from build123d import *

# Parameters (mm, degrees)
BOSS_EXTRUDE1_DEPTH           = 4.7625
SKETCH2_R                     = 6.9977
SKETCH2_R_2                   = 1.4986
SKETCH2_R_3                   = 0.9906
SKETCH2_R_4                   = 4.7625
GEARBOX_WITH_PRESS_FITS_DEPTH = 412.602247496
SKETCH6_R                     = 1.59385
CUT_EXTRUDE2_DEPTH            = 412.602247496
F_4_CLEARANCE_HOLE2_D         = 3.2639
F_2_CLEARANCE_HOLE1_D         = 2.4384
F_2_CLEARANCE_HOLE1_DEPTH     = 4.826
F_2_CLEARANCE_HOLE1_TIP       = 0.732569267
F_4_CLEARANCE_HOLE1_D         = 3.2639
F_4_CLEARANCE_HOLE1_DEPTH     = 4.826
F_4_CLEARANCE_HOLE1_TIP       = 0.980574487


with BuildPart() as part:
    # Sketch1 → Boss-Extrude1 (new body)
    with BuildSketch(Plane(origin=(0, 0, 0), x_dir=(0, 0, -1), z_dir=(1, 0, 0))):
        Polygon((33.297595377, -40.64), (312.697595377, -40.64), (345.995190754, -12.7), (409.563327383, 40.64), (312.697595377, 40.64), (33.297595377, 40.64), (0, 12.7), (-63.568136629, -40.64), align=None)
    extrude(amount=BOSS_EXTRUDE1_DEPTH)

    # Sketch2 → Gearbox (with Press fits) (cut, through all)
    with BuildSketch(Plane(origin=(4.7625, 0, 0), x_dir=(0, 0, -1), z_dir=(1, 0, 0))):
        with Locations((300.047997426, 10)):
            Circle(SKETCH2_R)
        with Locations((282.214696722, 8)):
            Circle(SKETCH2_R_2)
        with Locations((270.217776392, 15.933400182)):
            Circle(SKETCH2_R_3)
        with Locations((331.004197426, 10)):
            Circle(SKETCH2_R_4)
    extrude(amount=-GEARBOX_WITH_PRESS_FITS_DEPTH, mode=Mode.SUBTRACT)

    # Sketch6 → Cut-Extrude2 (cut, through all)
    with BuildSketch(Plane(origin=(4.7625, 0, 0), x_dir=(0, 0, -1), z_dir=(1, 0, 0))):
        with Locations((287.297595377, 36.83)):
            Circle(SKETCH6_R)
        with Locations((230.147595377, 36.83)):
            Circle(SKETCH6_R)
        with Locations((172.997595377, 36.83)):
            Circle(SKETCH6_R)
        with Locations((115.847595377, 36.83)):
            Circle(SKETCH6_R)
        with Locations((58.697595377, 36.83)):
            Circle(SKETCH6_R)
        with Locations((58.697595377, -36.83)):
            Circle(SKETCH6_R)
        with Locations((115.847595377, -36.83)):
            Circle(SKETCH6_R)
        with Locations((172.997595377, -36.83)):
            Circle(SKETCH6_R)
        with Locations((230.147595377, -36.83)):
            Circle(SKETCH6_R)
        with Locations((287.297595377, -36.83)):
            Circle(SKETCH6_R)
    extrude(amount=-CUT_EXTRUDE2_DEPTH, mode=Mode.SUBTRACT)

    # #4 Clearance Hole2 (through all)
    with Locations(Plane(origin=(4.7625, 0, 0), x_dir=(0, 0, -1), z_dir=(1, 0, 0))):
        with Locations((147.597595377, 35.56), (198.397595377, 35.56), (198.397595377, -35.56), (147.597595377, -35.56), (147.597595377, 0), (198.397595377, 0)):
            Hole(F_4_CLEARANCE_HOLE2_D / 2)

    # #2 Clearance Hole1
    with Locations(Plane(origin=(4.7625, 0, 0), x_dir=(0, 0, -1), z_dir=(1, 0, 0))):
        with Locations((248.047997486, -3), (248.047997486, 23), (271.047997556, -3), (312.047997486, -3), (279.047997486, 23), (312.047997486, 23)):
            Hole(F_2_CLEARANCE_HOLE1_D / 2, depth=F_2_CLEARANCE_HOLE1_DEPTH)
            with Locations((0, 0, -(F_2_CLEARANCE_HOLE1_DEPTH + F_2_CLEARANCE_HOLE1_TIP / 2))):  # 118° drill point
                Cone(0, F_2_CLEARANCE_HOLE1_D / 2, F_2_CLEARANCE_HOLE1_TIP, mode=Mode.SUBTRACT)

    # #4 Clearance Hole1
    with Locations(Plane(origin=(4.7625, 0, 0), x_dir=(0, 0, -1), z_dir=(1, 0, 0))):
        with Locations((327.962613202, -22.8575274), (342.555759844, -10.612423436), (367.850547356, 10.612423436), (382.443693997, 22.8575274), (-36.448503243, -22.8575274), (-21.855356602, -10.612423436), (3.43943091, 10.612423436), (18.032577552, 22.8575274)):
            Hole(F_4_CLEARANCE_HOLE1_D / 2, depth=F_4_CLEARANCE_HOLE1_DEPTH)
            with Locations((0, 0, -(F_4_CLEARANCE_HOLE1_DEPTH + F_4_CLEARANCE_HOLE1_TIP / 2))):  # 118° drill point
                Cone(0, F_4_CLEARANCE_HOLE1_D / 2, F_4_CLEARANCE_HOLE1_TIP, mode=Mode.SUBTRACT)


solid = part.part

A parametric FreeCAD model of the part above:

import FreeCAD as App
import Part
import Sketcher
Q = App.Units.Quantity


def add_polygon(sketch, points):
    """Adds a closed chain of lines whose ends are joined by coincident constraints."""
    first, n = sketch.GeometryCount, len(points)
    for a, b in zip(points, points[1:] + points[:1]):
        sketch.addGeometry(Part.LineSegment(App.Vector(*a, 0), App.Vector(*b, 0)), False)
    for i in range(n):
        sketch.addConstraint(Sketcher.Constraint("Coincident", first + i, 2, first + (i + 1) % n, 1))

doc = App.newDocument("Part")
params = doc.addObject("Spreadsheet::Sheet", "Params")
for row, (alias, value) in enumerate([
    ("pad1_length", "0.1875 in"),
    ("sketch2_diameter", "0.551 in"),
    ("sketch2_diameter2", "0.118 in"),
    ("sketch2_diameter3", "0.078 in"),
    ("sketch2_diameter4", "0.375 in"),
    ("hole_diameter", "0.1285 in"),
    ("sketch5_diameter", "0.096 in"),
    ("hole2_diameter", "0.096 in"),
    ("hole2_depth", "0.19 in"),
    ("hole3_diameter", "0.1285 in"),
    ("hole3_depth", "0.19 in"),
], start=1):
    params.set(f"A{row}", alias)
    params.set(f"B{row}", "=" + value)
    params.setAlias(f"B{row}", alias)

body = doc.addObject("PartDesign::Body", "Body")

# Sketch on YZ plane
sketch1 = doc.addObject("Sketcher::SketchObject", "Sketch")
body.addObject(sketch1)
sketch1.AttachmentSupport = (doc.YZ_Plane, [""])
sketch1.MapMode = "FlatFace"
add_polygon(sketch1, [(-41, -313), (-13, -346), (41, -410), (41, -33), (13, 0), (-41, 64)])  # lines 0-5
sketch1.addConstraint([
    Sketcher.Constraint("Vertical", 2),
    Sketcher.Constraint("Vertical", 5),
    Sketcher.Constraint("PointOnObject", 3, 2, -1),
    Sketcher.Constraint("Parallel", 0, 1),
    Sketcher.Constraint("Parallel", 1, 3),
    Sketcher.Constraint("Parallel", 3, 4),
    Sketcher.Constraint("Equal", 0, 3),
    Sketcher.Constraint("Angle", 0, Q("-50 deg")),
    Sketcher.Constraint("DistanceX", 0, 2, 3, 2, Q("1 in")),
    Sketcher.Constraint("DistanceY", 5, 2, 2, 2, Q("11 in")),
    Sketcher.Constraint("DistanceX", 0, 2, -1, 1, Q("0.5 in")),
    Sketcher.Constraint("DistanceX", -1, 1, 1, 2, Q("1.6 in")),
])
pad1 = doc.addObject("PartDesign::Pad", "Pad")
body.addObject(pad1)
pad1.Profile = sketch1
pad1.setExpression("Length", "Params.pad1_length")

# Sketch on YZ plane
sketch2 = doc.addObject("Sketcher::SketchObject", "Sketch001")
body.addObject(sketch2)
sketch2.AttachmentSupport = (doc.YZ_Plane, [""])
sketch2.MapMode = "FlatFace"
sketch2.AttachmentOffset = App.Placement(App.Vector(0, 0, 0.1875 * 25.4), App.Rotation())
sketch2.addGeometry([
    Part.Circle(App.Vector(10, -300, 0), App.Vector(0, 0, 1), 7),
    Part.Circle(App.Vector(8, -282.2, 0), App.Vector(0, 0, 1), 1.5),
    Part.Circle(App.Vector(15.9, -270.2, 0), App.Vector(0, 0, 1), 1),
    Part.Circle(App.Vector(10, -331, 0), App.Vector(0, 0, 1), 4.8),
], False)
sketch2.addConstraint([
    Sketcher.Constraint("Vertical", 0, 3, 3, 3),
    Sketcher.Constraint("Diameter", 0, Q("0.551 in")),
    Sketcher.Constraint("Diameter", 1, Q("0.118 in")),
    Sketcher.Constraint("Diameter", 2, Q("0.078 in")),
    Sketcher.Constraint("Diameter", 3, Q("0.375 in")),
    Sketcher.Constraint("DistanceX", -1, 1, 0, 3, 10.0),
    Sketcher.Constraint("DistanceX", -1, 1, 1, 3, 8.0),
    Sketcher.Constraint("DistanceX", -1, 1, 2, 3, 15.9334),
    Sketcher.Constraint("DistanceY", 0, 3, 1, 3, 17.833301),
    Sketcher.Constraint("DistanceY", 3, 3, 0, 3, 30.9562),
    Sketcher.Constraint("DistanceY", 1, 3, 2, 3, 11.99692),
    Sketcher.Constraint("DistanceY", 0, 3, -1, 1, 300.047997),
])
sketch2.setExpression("Constraints[1]", "Params.sketch2_diameter")
sketch2.setExpression("Constraints[2]", "Params.sketch2_diameter2")
sketch2.setExpression("Constraints[3]", "Params.sketch2_diameter3")
sketch2.setExpression("Constraints[4]", "Params.sketch2_diameter4")
pocket1 = doc.addObject("PartDesign::Pocket", "Pocket")
body.addObject(pocket1)
pocket1.Profile = sketch2
pocket1.Type = "ThroughAll"

# Sketch on YZ plane
sketch3 = doc.addObject("Sketcher::SketchObject", "Sketch002")
body.addObject(sketch3)
sketch3.AttachmentSupport = (doc.YZ_Plane, [""])
sketch3.MapMode = "FlatFace"
sketch3.AttachmentOffset = App.Placement(App.Vector(0, 0, 0.1875 * 25.4), App.Rotation())
sketch3.addGeometry([
    Part.Circle(App.Vector(36.8, -287.3, 0), App.Vector(0, 0, 1), 1.6),  # 0
    Part.Circle(App.Vector(36.8, -230.1, 0), App.Vector(0, 0, 1), 1.6),  # 1
    Part.Circle(App.Vector(36.8, -173, 0), App.Vector(0, 0, 1), 1.6),  # 2
    Part.Circle(App.Vector(36.8, -115.8, 0), App.Vector(0, 0, 1), 1.6),  # 3
    Part.Circle(App.Vector(36.8, -58.7, 0), App.Vector(0, 0, 1), 1.6),  # 4
    Part.Circle(App.Vector(-36.8, -58.7, 0), App.Vector(0, 0, 1), 1.6),  # 5
    Part.Circle(App.Vector(-36.8, -115.8, 0), App.Vector(0, 0, 1), 1.6),  # 6
    Part.Circle(App.Vector(-36.8, -173, 0), App.Vector(0, 0, 1), 1.6),  # 7
    Part.Circle(App.Vector(-36.8, -230.1, 0), App.Vector(0, 0, 1), 1.6),  # 8
    Part.Circle(App.Vector(-36.8, -287.3, 0), App.Vector(0, 0, 1), 1.6),  # 9
], False)
sketch3.addConstraint([
    Sketcher.Constraint("Equal", 0, 1),
    Sketcher.Constraint("Equal", 1, 2),
    Sketcher.Constraint("Equal", 2, 3),
    Sketcher.Constraint("Equal", 3, 4),
    Sketcher.Constraint("Equal", 4, 5),
    Sketcher.Constraint("Equal", 5, 6),
    Sketcher.Constraint("Equal", 6, 7),
    Sketcher.Constraint("Equal", 7, 8),
    Sketcher.Constraint("Equal", 8, 9),
    Sketcher.Constraint("Symmetric", 4, 3, 5, 3, -2),
    Sketcher.Constraint("Symmetric", 3, 3, 6, 3, -2),
    Sketcher.Constraint("Symmetric", 2, 3, 7, 3, -2),
    Sketcher.Constraint("Symmetric", 1, 3, 8, 3, -2),
    Sketcher.Constraint("Symmetric", 0, 3, 9, 3, -2),
    Sketcher.Constraint("Vertical", 0, 3, 1, 3),
    Sketcher.Constraint("Vertical", 1, 3, 2, 3),
    Sketcher.Constraint("Vertical", 2, 3, 3, 3),
    Sketcher.Constraint("Vertical", 3, 3, 4, 3),
    Sketcher.Constraint("DistanceY", 0, 3, 4, 3, Q("9 in")),
    Sketcher.Constraint("Diameter", 0, Q("0.1255 in")),
    Sketcher.Constraint("DistanceY", 0, 3, 2, 3, Q("4.5 in")),
    Sketcher.Constraint("DistanceY", 1, 3, 3, 3, Q("4.5 in")),
    Sketcher.Constraint("DistanceX", 5, 3, 4, 3, Q("2.9 in")),
    Sketcher.Constraint("DistanceY", 0, 3, 1, 3, Q("2.25 in")),
    Sketcher.Constraint("DistanceY", 0, 3, -1, 1, 287.297595),
])
pocket2 = doc.addObject("PartDesign::Pocket", "Pocket001")
body.addObject(pocket2)
pocket2.Profile = sketch3
pocket2.Type = "ThroughAll"

# Sketch on YZ plane
sketch4 = doc.addObject("Sketcher::SketchObject", "Sketch003")
body.addObject(sketch4)
sketch4.AttachmentSupport = (doc.YZ_Plane, [""])
sketch4.MapMode = "FlatFace"
sketch4.AttachmentOffset = App.Placement(App.Vector(0, 0, 0.1875 * 25.4), App.Rotation())
sketch4.addGeometry([
    Part.Circle(App.Vector(35.6, -147.6, 0), App.Vector(0, 0, 1), 1.6),  # 0
    Part.Circle(App.Vector(35.6, -198.4, 0), App.Vector(0, 0, 1), 1.6),  # 1
    Part.Circle(App.Vector(-35.6, -198.4, 0), App.Vector(0, 0, 1), 1.6),  # 2
    Part.Circle(App.Vector(-35.6, -147.6, 0), App.Vector(0, 0, 1), 1.6),  # 3
    Part.Circle(App.Vector(0, -147.6, 0), App.Vector(0, 0, 1), 1.6),  # 4
    Part.Circle(App.Vector(0, -198.4, 0), App.Vector(0, 0, 1), 1.6),  # 5
], False)
sketch4.addConstraint([
    Sketcher.Constraint("Equal", 0, 1),
    Sketcher.Constraint("Equal", 1, 2),
    Sketcher.Constraint("Equal", 2, 3),
    Sketcher.Constraint("Equal", 3, 4),
    Sketcher.Constraint("Equal", 4, 5),
    Sketcher.Constraint("Symmetric", 1, 3, 2, 3, -2),
    Sketcher.Constraint("Symmetric", 0, 3, 3, 3, -2),
    Sketcher.Constraint("PointOnObject", 4, 3, -2),
    Sketcher.Constraint("PointOnObject", 5, 3, -2),
    Sketcher.Constraint("Horizontal", 3, 3, 4, 3),
    Sketcher.Constraint("Horizontal", 2, 3, 5, 3),
    Sketcher.Constraint("Vertical", 0, 3, 1, 3),
    Sketcher.Constraint("DistanceY", 1, 3, 0, 3, Q("2 in")),
    Sketcher.Constraint("Diameter", 0, Q("0.1285 in")),
    Sketcher.Constraint("DistanceX", -1, 1, 0, 3, Q("1.4 in")),
    Sketcher.Constraint("DistanceY", 0, 3, -1, 1, 147.597595),
])
doc.recompute()
hole = doc.addObject("PartDesign::Hole", "Hole")
body.addObject(hole)
hole.Profile = sketch4
hole.ThreadType = "None"
hole.setExpression("Diameter", "Params.hole_diameter")
hole.DepthType = "ThroughAll"

# Sketch on YZ plane
sketch5 = doc.addObject("Sketcher::SketchObject", "Sketch004")
body.addObject(sketch5)
sketch5.AttachmentSupport = (doc.YZ_Plane, [""])
sketch5.MapMode = "FlatFace"
sketch5.AttachmentOffset = App.Placement(App.Vector(0, 0, 0.1875 * 25.4), App.Rotation())
sketch5.addGeometry([
    Part.Circle(App.Vector(-3, -248, 0), App.Vector(0, 0, 1), 1.2),  # 0
    Part.Circle(App.Vector(23, -248, 0), App.Vector(0, 0, 1), 1.2),  # 1
    Part.Circle(App.Vector(-3, -271, 0), App.Vector(0, 0, 1), 1.2),  # 2
    Part.Circle(App.Vector(-3, -312, 0), App.Vector(0, 0, 1), 1.2),  # 3
    Part.Circle(App.Vector(23, -279, 0), App.Vector(0, 0, 1), 1.2),  # 4
    Part.Circle(App.Vector(23, -312, 0), App.Vector(0, 0, 1), 1.2),  # 5
], False)
sketch5.addConstraint([
    Sketcher.Constraint("Equal", 0, 1),
    Sketcher.Constraint("Equal", 1, 2),
    Sketcher.Constraint("Equal", 2, 3),
    Sketcher.Constraint("Equal", 3, 4),
    Sketcher.Constraint("Equal", 4, 5),
    Sketcher.Constraint("Horizontal", 0, 3, 1, 3),
    Sketcher.Constraint("Horizontal", 3, 3, 5, 3),
    Sketcher.Constraint("Vertical", 0, 3, 2, 3),
    Sketcher.Constraint("Vertical", 2, 3, 3, 3),
    Sketcher.Constraint("Vertical", 1, 3, 4, 3),
    Sketcher.Constraint("Vertical", 4, 3, 5, 3),
    Sketcher.Constraint("Diameter", 0, Q("0.096 in")),
    Sketcher.Constraint("DistanceX", 0, 3, -1, 1, 3.0),
    Sketcher.Constraint("DistanceX", -1, 1, 1, 3, 23.0),
    Sketcher.Constraint("DistanceY", 2, 3, 0, 3, 23.0),
    Sketcher.Constraint("DistanceY", 3, 3, 2, 3, 41.0),
    Sketcher.Constraint("DistanceY", 4, 3, 2, 3, 8.0),
    Sketcher.Constraint("DistanceY", 0, 3, -1, 1, 248.047997),
])
sketch5.setExpression("Constraints[11]", "Params.sketch5_diameter")
doc.recompute()
hole2 = doc.addObject("PartDesign::Hole", "Hole001")
body.addObject(hole2)
hole2.Profile = sketch5
hole2.ThreadType = "None"
hole2.setExpression("Diameter", "Params.hole2_diameter")
hole2.DepthType = "Dimension"
hole2.setExpression("Depth", "Params.hole2_depth")
hole2.DrillPoint = "Angled"
hole2.DrillPointAngle = 118

# Sketch on YZ plane
sketch6 = doc.addObject("Sketcher::SketchObject", "Sketch005")
body.addObject(sketch6)
sketch6.AttachmentSupport = (doc.YZ_Plane, [""])
sketch6.MapMode = "FlatFace"
sketch6.AttachmentOffset = App.Placement(App.Vector(0, 0, 0.1875 * 25.4), App.Rotation())
sketch6.addGeometry([
    Part.Circle(App.Vector(-22.9, -328, 0), App.Vector(0, 0, 1), 1.6),  # 0
    Part.Circle(App.Vector(-10.6, -342.6, 0), App.Vector(0, 0, 1), 1.6),  # 1
    Part.Circle(App.Vector(10.6, -367.9, 0), App.Vector(0, 0, 1), 1.6),  # 2
    Part.Circle(App.Vector(22.9, -382.4, 0), App.Vector(0, 0, 1), 1.6),  # 3
    Part.Circle(App.Vector(-22.9, 36.4, 0), App.Vector(0, 0, 1), 1.6),  # 4
    Part.Circle(App.Vector(-10.6, 21.9, 0), App.Vector(0, 0, 1), 1.6),  # 5
    Part.Circle(App.Vector(10.6, -3.4, 0), App.Vector(0, 0, 1), 1.6),  # 6
    Part.Circle(App.Vector(22.9, -18, 0), App.Vector(0, 0, 1), 1.6),  # 7
], False)
sketch6.addConstraint([
    Sketcher.Constraint("Equal", 0, 1),
    Sketcher.Constraint("Equal", 1, 2),
    Sketcher.Constraint("Equal", 2, 3),
    Sketcher.Constraint("Equal", 3, 4),
    Sketcher.Constraint("Equal", 4, 5),
    Sketcher.Constraint("Equal", 5, 6),
    Sketcher.Constraint("Equal", 6, 7),
    Sketcher.Constraint("Vertical", 0, 3, 4, 3),
    Sketcher.Constraint("Vertical", 1, 3, 5, 3),
    Sketcher.Constraint("Vertical", 2, 3, 6, 3),
    Sketcher.Constraint("Vertical", 3, 3, 7, 3),
    Sketcher.Constraint("Diameter", 0, Q("0.1285 in")),
    Sketcher.Constraint("DistanceY", 1, 3, -1, 1, 342.55576),
    Sketcher.Constraint("DistanceY", 6, 3, -1, 1, 3.439431),
    Sketcher.Constraint("DistanceX", 0, 3, 2, 3, 33.469951),
    Sketcher.Constraint("DistanceX", 1, 3, 3, 3, 33.469951),
    Sketcher.Constraint("DistanceY", 3, 3, 0, 3, 54.481081),
    Sketcher.Constraint("DistanceY", 2, 3, 4, 3, 404.299051),
    Sketcher.Constraint("DistanceY", 0, 3, 5, 3, 349.81797),
    Sketcher.Constraint("DistanceY", 7, 3, 4, 3, 54.481081),
    Sketcher.Constraint("DistanceX", 0, 3, -1, 1, 22.857527),
    Sketcher.Constraint("DistanceY", 0, 3, -1, 1, 327.962613),
    Sketcher.Constraint("DistanceX", 1, 3, -1, 1, 10.612423),
    Sketcher.Constraint("DistanceY", 2, 3, -1, 1, 367.850547),
])
doc.recompute()
hole3 = doc.addObject("PartDesign::Hole", "Hole002")
body.addObject(hole3)
hole3.Profile = sketch6
hole3.ThreadType = "None"
hole3.setExpression("Diameter", "Params.hole3_diameter")
hole3.DepthType = "Dimension"
hole3.setExpression("Depth", "Params.hole3_depth")
hole3.DrillPoint = "Angled"
hole3.DrillPointAngle = 118

doc.recompute()
